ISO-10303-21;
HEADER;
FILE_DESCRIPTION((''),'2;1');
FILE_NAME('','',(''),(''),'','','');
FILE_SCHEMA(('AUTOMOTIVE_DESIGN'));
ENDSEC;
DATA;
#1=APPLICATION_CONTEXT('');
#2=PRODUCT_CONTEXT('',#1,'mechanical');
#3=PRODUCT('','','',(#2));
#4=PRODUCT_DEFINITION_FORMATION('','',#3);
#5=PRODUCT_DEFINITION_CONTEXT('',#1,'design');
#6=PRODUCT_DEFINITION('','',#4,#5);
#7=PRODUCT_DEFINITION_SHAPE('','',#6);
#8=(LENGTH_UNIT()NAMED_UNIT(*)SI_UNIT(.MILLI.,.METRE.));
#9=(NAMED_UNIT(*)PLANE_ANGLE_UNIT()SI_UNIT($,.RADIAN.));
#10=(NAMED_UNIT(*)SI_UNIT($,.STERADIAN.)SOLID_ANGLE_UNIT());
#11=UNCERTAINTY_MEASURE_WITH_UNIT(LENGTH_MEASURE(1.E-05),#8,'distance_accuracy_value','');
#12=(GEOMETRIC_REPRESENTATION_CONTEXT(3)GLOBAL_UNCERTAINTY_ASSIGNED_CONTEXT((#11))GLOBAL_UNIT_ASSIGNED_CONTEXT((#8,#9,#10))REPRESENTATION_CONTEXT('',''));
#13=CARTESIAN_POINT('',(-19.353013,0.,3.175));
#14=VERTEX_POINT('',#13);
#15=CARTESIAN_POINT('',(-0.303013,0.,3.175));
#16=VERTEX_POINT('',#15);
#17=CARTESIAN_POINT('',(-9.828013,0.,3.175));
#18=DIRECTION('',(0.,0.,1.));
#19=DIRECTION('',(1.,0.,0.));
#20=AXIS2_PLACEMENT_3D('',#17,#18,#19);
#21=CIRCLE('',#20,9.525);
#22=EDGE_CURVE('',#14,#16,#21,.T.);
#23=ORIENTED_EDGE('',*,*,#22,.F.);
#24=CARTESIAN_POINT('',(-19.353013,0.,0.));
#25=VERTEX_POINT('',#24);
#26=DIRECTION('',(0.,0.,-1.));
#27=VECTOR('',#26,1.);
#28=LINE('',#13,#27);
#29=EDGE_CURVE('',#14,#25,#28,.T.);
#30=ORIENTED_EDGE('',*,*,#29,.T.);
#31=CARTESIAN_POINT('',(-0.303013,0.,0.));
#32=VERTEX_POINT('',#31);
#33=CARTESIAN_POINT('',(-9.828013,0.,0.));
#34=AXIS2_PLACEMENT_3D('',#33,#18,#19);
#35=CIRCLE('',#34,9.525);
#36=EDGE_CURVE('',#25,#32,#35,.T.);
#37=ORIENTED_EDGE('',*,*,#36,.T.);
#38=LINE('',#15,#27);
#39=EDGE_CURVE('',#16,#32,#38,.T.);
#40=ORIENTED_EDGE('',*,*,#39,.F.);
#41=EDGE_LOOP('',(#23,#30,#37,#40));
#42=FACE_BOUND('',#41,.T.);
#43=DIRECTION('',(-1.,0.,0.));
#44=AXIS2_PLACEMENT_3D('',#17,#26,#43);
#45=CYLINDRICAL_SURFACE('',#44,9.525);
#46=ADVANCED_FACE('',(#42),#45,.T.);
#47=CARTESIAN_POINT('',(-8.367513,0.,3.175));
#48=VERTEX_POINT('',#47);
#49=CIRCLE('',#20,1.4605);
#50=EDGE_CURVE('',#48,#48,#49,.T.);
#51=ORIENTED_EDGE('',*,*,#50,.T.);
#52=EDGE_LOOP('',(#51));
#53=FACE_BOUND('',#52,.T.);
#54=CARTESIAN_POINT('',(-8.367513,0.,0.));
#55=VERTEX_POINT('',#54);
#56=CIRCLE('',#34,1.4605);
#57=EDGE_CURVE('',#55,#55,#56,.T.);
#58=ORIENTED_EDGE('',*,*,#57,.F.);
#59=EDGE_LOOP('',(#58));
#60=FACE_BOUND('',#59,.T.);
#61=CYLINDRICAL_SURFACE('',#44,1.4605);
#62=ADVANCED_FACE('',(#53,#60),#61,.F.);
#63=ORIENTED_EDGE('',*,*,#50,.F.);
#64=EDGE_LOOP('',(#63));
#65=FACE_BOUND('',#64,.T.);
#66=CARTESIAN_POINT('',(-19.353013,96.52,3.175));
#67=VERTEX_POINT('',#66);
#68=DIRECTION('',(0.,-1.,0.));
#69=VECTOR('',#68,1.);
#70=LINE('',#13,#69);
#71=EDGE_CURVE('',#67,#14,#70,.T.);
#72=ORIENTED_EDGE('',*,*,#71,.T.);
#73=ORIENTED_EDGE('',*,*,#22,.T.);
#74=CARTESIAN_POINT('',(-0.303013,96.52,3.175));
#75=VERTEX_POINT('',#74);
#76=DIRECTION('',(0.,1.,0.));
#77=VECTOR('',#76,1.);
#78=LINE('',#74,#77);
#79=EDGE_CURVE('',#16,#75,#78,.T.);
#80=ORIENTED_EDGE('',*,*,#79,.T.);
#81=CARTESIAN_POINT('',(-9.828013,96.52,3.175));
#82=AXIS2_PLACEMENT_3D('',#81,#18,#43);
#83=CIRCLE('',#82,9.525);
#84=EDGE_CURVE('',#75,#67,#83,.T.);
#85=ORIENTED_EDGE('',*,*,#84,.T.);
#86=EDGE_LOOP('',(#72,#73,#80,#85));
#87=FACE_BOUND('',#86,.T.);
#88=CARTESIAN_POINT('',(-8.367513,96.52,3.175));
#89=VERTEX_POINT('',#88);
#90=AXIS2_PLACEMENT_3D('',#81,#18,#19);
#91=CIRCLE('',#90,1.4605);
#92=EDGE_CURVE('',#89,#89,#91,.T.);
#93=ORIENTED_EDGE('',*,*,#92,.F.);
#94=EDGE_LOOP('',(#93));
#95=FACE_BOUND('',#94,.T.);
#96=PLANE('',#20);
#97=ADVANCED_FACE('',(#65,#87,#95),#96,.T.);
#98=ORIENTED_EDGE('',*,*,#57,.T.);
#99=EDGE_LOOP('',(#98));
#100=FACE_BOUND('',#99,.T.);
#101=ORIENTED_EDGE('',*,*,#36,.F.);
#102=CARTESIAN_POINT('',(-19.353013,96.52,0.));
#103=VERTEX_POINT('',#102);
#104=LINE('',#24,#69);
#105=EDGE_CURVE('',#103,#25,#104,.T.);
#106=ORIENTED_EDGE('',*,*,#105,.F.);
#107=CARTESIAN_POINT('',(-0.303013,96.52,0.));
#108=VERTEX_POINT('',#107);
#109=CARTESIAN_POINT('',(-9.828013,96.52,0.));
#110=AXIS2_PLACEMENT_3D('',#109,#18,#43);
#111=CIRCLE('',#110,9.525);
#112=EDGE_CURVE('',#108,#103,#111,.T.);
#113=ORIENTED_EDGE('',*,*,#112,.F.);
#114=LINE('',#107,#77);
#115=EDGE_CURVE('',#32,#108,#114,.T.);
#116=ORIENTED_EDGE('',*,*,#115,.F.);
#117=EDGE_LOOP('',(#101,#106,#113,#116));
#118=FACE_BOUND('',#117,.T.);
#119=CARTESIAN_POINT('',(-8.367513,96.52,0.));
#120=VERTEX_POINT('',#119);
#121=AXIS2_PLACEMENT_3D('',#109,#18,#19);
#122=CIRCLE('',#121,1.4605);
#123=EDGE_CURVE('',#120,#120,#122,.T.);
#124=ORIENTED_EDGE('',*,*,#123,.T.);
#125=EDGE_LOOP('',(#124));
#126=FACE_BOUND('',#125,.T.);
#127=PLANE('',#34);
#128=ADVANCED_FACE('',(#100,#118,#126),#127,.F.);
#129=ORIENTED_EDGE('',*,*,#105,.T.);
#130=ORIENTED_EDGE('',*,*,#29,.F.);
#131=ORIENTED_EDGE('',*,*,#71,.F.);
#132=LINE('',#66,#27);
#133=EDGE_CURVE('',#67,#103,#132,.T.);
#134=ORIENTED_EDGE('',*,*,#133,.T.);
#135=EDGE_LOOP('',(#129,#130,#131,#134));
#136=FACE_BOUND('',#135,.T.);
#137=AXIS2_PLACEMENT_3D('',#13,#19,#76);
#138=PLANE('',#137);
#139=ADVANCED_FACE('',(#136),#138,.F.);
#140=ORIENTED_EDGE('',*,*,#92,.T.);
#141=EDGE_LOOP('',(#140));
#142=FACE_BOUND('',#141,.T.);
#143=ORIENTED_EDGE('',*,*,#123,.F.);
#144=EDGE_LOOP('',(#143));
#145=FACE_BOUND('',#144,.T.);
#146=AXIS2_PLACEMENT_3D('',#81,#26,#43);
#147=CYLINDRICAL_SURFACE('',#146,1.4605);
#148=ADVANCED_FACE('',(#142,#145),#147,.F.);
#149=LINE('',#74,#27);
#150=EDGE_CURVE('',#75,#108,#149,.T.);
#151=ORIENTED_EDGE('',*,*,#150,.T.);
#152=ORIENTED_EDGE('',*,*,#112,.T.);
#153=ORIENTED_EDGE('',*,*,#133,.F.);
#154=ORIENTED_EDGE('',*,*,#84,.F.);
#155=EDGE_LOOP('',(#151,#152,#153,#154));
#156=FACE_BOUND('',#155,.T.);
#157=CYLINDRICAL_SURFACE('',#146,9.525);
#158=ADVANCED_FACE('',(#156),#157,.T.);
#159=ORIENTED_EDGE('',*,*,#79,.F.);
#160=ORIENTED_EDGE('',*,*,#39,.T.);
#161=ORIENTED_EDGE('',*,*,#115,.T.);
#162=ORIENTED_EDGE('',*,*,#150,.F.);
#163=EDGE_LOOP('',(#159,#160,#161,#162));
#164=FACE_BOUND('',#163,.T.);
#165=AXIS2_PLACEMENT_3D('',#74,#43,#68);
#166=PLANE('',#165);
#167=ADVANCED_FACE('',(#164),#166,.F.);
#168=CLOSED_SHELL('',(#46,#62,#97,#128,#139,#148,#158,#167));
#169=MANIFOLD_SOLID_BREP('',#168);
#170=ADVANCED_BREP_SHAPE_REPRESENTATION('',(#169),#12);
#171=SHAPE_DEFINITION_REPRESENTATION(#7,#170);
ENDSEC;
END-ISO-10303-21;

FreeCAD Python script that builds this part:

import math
import FreeCAD as App
import Part
import Sketcher

V = App.Vector
Q = App.Units.Quantity

doc = App.newDocument("Part")
body = doc.addObject("PartDesign::Body", "Body")

# Sketch on XY plane
sketch1 = body.newObject("Sketcher::SketchObject", "Sketch")
sketch1.AttachmentSupport = (doc.getObject("XY_Plane"), [""])
sketch1.MapMode = "FlatFace"
sketch1.addGeometry([
    Part.LineSegment(V(-19.4, 96.5, 0), V(-19.4, 0, 0)),  # 0
    Part.ArcOfCircle(Part.Circle(V(-9.8, 0, 0), V(0, 0, 1), 9.5), math.radians(180), math.radians(360)),  # 1
    Part.LineSegment(V(-0.3, 0, 0), V(-0.3, 96.5, 0)),  # 2
    Part.ArcOfCircle(Part.Circle(V(-9.8, 96.5, 0), V(0, 0, 1), 9.5), math.radians(0), math.radians(180)),  # 3
    Part.Circle(V(-9.8, 0, 0), V(0, 0, 1), 1.5),  # 4
    Part.Circle(V(-9.8, 96.5, 0), V(0, 0, 1), 1.5),  # 5
], False)
sketch1.addConstraint([
    Sketcher.Constraint("Tangent", 0, 2, 1, 1),
    Sketcher.Constraint("Tangent", 1, 2, 2, 1),
    Sketcher.Constraint("Tangent", 2, 2, 3, 1),
    Sketcher.Constraint("Tangent", 3, 2, 0, 1),
    Sketcher.Constraint("Vertical", 0),
    Sketcher.Constraint("Vertical", 2),
    Sketcher.Constraint("Coincident", 4, 3, 1, 3),
    Sketcher.Constraint("Coincident", 5, 3, 3, 3),
    Sketcher.Constraint("Equal", 4, 5),
    Sketcher.Constraint("PointOnObject", 1, 3, -1),
    Sketcher.Constraint("Diameter", 4, Q("0.115 in")),
    Sketcher.Constraint("DistanceY", 0, 2, 0, 1, Q("3.8 in")),
    Sketcher.Constraint("Radius", 1, Q("0.375 in")),
    Sketcher.Constraint("DistanceX", 1, 3, -1, 1, Q("9.828013 mm")),
])
pad1 = body.newObject("PartDesign::Pad", "Pad")
pad1.Profile = sketch1
pad1.Length = Q("0.125 in")

doc.recompute()
